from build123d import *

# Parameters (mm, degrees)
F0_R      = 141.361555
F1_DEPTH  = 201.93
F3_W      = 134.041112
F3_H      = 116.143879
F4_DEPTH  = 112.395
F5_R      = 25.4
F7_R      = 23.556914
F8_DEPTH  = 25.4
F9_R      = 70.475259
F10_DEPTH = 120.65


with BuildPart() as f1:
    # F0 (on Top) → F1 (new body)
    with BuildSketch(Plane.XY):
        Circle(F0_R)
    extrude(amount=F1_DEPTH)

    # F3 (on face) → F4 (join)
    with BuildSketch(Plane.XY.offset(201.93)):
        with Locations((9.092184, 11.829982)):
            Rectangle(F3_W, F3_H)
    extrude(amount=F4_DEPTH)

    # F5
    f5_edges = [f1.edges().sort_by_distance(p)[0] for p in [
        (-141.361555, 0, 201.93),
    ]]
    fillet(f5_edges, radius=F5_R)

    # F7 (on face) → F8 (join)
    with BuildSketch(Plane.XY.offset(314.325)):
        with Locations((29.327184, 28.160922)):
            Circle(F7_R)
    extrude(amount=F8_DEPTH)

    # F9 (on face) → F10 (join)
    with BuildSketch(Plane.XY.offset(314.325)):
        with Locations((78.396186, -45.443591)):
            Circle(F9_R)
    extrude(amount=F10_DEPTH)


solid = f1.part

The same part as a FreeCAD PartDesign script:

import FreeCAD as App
import Part
import Sketcher
Q = App.Units.Quantity


def edges_at(feature, points):
    """Names of the edges that pass closest to the given points."""
    edges = feature.Shape.Edges
    near = lambda p: min(range(len(edges)), key=lambda i: edges[i].distToShape(Part.Vertex(*p))[0])
    return sorted({f"Edge{near(p) + 1}" for p in points})

doc = App.newDocument("Part")
body = doc.addObject("PartDesign::Body", "Body")

# Sketch on XY plane
sketch1 = body.newObject("Sketcher::SketchObject", "Sketch")
sketch1.AttachmentSupport = (doc.getObject("XY_Plane"), [""])
sketch1.MapMode = "FlatFace"
sketch1.addGeometry(Part.Circle(App.Vector(0, 0, 0), App.Vector(0, 0, 1), 141.361555), False)
sketch1.addConstraint([
    Sketcher.Constraint("Coincident", 0, 3, -1, 1),
    Sketcher.Constraint("Diameter", 0, 282.72311),
])
pad1 = body.newObject("PartDesign::Pad", "Pad")
pad1.Profile = sketch1
pad1.Length = Q("7.95 in")

# Sketch on XY plane
sketch2 = body.newObject("Sketcher::SketchObject", "Sketch001")
sketch2.AttachmentSupport = (doc.getObject("XY_Plane"), [""])
sketch2.MapMode = "FlatFace"
sketch2.AttachmentOffset = App.Placement(App.Vector(0, 0, 7.95 * 25.4), App.Rotation())
sketch2.addGeometry([
    Part.LineSegment(App.Vector(-57.928372, 69.901922, 0), App.Vector(-57.928372, -46.241957, 0)),
    Part.LineSegment(App.Vector(-57.928372, -46.241957, 0), App.Vector(76.11274, -46.241957, 0)),
    Part.LineSegment(App.Vector(76.11274, -46.241957, 0), App.Vector(76.11274, 69.901922, 0)),
    Part.LineSegment(App.Vector(76.11274, 69.901922, 0), App.Vector(-57.928372, 69.901922, 0)),
], False)
sketch2.addConstraint([
    Sketcher.Constraint("Coincident", 0, 2, 1, 1),
    Sketcher.Constraint("Coincident", 1, 2, 2, 1),
    Sketcher.Constraint("Coincident", 2, 2, 3, 1),
    Sketcher.Constraint("Coincident", 3, 2, 0, 1),
    Sketcher.Constraint("Vertical", 0),
    Sketcher.Constraint("Horizontal", 1),
    Sketcher.Constraint("Vertical", 2),
    Sketcher.Constraint("Horizontal", 3),
    Sketcher.Constraint("DistanceX", 1, 1, 1, 2, 134.041112),
    Sketcher.Constraint("DistanceY", 0, 2, 0, 1, 116.143879),
    Sketcher.Constraint("DistanceX", -1, 1, 1, 2, 76.11274),
    Sketcher.Constraint("DistanceY", -1, 1, 2, 2, 69.901922),
])
pad2 = body.newObject("PartDesign::Pad", "Pad001")
pad2.Profile = sketch2
pad2.Length = Q("4.425 in")
doc.recompute()

fillet = body.newObject("PartDesign::Fillet", "Fillet")
fillet.Base = (pad2, edges_at(pad2, [(-141.362, 0, 201.93)]))
fillet.Radius = Q("1 in")

# Sketch on XY plane
sketch3 = body.newObject("Sketcher::SketchObject", "Sketch002")
sketch3.AttachmentSupport = (doc.getObject("XY_Plane"), [""])
sketch3.MapMode = "FlatFace"
sketch3.AttachmentOffset = App.Placement(App.Vector(0, 0, 12.375 * 25.4), App.Rotation())
sketch3.addGeometry(Part.Circle(App.Vector(29.327184, 28.160922, 0), App.Vector(0, 0, 1), 23.556914), False)
sketch3.addConstraint([
    Sketcher.Constraint("Diameter", 0, 47.113828),
    Sketcher.Constraint("DistanceY", -1, 1, 0, 3, 28.160922),
    Sketcher.Constraint("DistanceX", -1, 1, 0, 3, 29.327184),
])
pad3 = body.newObject("PartDesign::Pad", "Pad002")
pad3.Profile = sketch3
pad3.Length = Q("1 in")

# Sketch on XY plane
sketch4 = body.newObject("Sketcher::SketchObject", "Sketch003")
sketch4.AttachmentSupport = (doc.getObject("XY_Plane"), [""])
sketch4.MapMode = "FlatFace"
sketch4.AttachmentOffset = App.Placement(App.Vector(0, 0, 12.375 * 25.4), App.Rotation())
sketch4.addGeometry(Part.Circle(App.Vector(78.396186, -45.443591, 0), App.Vector(0, 0, 1), 70.475259), False)
sketch4.addConstraint([
    Sketcher.Constraint("Diameter", 0, 140.950518),
    Sketcher.Constraint("DistanceY", 0, 3, -1, 1, 45.443591),
    Sketcher.Constraint("DistanceX", -1, 1, 0, 3, 78.396186),
])
pad4 = body.newObject("PartDesign::Pad", "Pad003")
pad4.Profile = sketch4
pad4.Length = Q("4.75 in")

doc.recompute()
